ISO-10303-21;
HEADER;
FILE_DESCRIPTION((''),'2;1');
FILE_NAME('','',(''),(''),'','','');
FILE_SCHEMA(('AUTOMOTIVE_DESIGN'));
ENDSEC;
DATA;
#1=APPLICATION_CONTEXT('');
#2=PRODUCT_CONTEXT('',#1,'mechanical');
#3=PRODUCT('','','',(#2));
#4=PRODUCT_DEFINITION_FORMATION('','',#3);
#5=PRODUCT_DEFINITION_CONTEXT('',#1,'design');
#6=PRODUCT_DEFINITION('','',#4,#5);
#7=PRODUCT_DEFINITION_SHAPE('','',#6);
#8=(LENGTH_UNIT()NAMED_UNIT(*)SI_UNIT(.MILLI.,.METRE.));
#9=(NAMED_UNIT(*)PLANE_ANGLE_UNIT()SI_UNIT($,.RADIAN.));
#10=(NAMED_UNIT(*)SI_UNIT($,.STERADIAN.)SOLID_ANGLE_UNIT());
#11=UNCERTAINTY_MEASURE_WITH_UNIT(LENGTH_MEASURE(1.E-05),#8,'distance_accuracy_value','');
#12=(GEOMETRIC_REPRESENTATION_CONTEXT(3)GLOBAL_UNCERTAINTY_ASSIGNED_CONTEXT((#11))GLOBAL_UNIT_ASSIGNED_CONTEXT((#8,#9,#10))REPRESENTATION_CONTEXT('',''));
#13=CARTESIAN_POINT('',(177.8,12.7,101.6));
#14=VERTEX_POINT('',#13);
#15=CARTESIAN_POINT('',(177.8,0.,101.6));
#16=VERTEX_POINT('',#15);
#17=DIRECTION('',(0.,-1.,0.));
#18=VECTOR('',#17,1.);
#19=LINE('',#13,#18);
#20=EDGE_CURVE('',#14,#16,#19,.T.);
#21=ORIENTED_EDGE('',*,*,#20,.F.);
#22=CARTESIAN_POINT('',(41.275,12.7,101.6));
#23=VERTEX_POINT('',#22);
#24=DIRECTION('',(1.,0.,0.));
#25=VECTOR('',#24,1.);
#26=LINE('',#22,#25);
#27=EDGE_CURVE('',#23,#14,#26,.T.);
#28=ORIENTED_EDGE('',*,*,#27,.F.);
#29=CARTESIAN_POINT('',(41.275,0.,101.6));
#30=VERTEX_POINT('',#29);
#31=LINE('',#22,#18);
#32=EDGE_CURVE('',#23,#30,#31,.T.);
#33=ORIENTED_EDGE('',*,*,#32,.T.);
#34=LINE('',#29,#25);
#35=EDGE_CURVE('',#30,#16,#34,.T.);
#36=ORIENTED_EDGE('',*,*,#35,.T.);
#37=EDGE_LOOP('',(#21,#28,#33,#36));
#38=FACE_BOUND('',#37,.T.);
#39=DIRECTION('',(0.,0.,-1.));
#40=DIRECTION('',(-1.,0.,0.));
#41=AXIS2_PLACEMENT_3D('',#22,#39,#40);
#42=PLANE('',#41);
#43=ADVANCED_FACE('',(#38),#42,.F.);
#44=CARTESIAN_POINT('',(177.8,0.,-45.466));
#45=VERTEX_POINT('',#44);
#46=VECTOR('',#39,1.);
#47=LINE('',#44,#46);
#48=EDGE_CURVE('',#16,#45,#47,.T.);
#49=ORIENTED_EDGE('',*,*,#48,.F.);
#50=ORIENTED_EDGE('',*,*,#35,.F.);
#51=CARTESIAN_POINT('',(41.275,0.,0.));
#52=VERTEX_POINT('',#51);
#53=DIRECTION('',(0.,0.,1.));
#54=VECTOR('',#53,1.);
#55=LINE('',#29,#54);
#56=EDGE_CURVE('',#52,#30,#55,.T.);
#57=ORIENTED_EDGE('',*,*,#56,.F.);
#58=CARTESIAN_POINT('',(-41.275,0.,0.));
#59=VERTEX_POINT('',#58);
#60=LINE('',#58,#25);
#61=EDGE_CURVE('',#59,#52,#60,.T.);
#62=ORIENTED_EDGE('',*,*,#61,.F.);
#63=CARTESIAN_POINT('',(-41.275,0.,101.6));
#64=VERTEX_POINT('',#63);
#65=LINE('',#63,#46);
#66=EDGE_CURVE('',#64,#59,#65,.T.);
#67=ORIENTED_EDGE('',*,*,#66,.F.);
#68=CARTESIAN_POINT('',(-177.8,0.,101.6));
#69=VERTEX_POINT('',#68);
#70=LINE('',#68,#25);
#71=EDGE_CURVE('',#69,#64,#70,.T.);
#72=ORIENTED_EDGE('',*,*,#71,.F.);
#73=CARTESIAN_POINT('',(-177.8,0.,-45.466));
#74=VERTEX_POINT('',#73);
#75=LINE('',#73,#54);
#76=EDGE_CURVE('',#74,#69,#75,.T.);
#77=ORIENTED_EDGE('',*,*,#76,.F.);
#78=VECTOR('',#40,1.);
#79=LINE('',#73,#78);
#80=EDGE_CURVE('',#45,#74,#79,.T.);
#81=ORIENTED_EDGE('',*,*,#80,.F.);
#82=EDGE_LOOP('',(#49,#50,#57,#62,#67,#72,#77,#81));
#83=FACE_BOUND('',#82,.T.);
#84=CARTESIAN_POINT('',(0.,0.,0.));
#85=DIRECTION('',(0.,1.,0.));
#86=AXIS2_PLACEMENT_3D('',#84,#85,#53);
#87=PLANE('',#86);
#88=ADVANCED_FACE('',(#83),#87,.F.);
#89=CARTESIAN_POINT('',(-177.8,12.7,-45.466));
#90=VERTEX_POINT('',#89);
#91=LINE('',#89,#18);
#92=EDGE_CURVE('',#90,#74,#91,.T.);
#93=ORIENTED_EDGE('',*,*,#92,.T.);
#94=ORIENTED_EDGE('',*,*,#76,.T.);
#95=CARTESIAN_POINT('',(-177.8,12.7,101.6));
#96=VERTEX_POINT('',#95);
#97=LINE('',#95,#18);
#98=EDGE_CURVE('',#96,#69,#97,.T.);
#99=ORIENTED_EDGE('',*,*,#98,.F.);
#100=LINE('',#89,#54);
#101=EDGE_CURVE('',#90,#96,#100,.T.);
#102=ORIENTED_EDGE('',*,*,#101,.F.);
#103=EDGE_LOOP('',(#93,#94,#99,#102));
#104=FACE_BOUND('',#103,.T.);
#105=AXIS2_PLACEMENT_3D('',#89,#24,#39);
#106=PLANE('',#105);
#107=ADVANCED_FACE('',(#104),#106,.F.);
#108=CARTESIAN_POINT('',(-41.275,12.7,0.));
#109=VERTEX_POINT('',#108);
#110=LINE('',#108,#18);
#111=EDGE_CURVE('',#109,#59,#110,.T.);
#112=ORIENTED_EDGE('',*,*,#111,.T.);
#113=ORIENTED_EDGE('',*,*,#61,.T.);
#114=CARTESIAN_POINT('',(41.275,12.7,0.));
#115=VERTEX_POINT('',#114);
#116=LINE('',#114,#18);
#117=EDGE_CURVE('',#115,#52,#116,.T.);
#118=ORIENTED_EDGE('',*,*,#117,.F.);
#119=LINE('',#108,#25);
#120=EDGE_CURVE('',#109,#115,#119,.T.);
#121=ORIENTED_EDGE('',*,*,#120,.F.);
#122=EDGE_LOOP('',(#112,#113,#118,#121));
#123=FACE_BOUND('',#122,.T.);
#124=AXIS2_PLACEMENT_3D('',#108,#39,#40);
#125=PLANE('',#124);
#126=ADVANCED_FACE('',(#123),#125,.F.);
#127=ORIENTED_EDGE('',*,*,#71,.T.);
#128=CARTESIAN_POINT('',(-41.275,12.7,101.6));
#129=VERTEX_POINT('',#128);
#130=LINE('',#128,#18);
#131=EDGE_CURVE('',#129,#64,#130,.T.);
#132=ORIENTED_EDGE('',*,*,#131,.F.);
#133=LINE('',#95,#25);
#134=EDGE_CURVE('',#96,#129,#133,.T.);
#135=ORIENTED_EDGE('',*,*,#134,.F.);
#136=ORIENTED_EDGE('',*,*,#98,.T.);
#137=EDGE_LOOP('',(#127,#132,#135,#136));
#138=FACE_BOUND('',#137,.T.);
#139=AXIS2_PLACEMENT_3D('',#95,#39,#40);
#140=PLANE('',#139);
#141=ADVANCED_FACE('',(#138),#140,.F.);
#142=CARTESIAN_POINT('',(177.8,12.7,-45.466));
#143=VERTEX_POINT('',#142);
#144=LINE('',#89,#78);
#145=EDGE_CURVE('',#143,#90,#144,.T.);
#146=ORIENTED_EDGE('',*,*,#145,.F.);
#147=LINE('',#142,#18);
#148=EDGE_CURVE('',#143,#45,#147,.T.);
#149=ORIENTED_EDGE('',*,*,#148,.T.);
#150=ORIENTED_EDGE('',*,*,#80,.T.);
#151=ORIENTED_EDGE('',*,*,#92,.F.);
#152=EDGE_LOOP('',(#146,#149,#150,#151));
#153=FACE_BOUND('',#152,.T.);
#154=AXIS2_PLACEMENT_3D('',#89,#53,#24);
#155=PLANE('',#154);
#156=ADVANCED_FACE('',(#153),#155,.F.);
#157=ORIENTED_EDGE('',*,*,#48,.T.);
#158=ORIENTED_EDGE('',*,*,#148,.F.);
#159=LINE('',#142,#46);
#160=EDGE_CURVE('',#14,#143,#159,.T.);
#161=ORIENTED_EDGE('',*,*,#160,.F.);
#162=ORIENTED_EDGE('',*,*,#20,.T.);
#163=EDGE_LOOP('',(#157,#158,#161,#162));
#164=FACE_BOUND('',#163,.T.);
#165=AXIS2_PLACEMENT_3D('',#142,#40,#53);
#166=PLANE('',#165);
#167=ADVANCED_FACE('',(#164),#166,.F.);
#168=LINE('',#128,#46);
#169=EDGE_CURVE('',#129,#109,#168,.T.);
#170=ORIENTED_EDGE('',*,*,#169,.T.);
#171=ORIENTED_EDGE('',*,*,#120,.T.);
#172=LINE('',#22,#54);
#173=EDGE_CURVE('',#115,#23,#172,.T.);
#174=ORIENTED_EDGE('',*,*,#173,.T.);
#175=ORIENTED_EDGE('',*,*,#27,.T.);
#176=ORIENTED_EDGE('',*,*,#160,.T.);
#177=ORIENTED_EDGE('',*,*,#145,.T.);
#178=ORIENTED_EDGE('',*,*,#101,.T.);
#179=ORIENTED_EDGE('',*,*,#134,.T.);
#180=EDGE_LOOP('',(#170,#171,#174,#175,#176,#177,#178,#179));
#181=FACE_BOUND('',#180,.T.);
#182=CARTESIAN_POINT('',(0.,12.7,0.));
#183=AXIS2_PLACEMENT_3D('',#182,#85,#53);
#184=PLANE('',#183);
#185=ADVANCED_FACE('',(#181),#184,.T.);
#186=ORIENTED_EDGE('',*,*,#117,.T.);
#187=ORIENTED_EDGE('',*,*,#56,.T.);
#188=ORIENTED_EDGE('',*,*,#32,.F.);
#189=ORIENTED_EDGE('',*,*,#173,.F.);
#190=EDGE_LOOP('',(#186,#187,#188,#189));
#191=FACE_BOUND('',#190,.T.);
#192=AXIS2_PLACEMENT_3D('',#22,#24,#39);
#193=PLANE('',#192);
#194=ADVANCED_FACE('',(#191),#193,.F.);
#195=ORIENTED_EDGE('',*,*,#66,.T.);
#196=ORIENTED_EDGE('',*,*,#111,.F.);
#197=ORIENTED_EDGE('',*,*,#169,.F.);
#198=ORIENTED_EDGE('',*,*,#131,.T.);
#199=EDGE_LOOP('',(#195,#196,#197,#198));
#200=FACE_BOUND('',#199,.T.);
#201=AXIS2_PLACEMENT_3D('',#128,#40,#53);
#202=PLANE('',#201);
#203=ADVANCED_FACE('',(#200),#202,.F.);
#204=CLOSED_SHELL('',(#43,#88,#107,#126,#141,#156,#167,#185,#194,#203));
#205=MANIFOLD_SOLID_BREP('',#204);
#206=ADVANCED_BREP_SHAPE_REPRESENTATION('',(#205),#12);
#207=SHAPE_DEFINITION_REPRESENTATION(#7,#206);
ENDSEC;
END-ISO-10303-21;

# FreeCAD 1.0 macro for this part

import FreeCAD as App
import Part
import Sketcher

V = App.Vector
Q = App.Units.Quantity


def add_polygon(sketch, points):
    """Adds a closed chain of lines whose ends are joined by coincident constraints."""
    first, n = sketch.GeometryCount, len(points)
    for a, b in zip(points, points[1:] + points[:1]):
        sketch.addGeometry(Part.LineSegment(App.Vector(*a, 0), App.Vector(*b, 0)), False)
    for i in range(n):
        sketch.addConstraint(Sketcher.Constraint("Coincident", first + i, 2, first + (i + 1) % n, 1))

doc = App.newDocument("Part")
body = doc.addObject("PartDesign::Body", "Body")

sketch1 = body.newObject("Sketcher::SketchObject", "Sketch")
sketch1.AttachmentSupport = (doc.getObject("XZ_Plane"), [""])
sketch1.MapMode = "FlatFace"
add_polygon(sketch1, [(-41, 102), (-41, 0), (41, 0), (41, 102), (178, 102), (178, -45), (-178, -45), (-178, 102)])
sketch1.addConstraint(Sketcher.Constraint("Vertical", 0))
sketch1.addConstraint(Sketcher.Constraint("Horizontal", 1))
sketch1.addConstraint(Sketcher.Constraint("Vertical", 2))
sketch1.addConstraint(Sketcher.Constraint("Horizontal", 3))
sketch1.addConstraint(Sketcher.Constraint("Vertical", 4))
sketch1.addConstraint(Sketcher.Constraint("Horizontal", 5))
sketch1.addConstraint(Sketcher.Constraint("Vertical", 6))
sketch1.addConstraint(Sketcher.Constraint("Horizontal", 7))
sketch1.addConstraint(Sketcher.Constraint("Symmetric", 0, 2, 1, 2, -1, 1))
sketch1.addConstraint(Sketcher.Constraint("Symmetric", 3, 2, 6, 2, -2))
sketch1.addConstraint(Sketcher.Constraint("DistanceX", 5, 2, 5, 1, Q("14 in")))
sketch1.addConstraint(Sketcher.Constraint("DistanceY", 0, 2, 0, 1, Q("4 in")))
sketch1.addConstraint(Sketcher.Constraint("DistanceX", 1, 1, 1, 2, Q("3.25 in")))
sketch1.addConstraint(Sketcher.Constraint("DistanceY", 4, 2, 4, 1, Q("5.79 in")))
pad1 = body.newObject("PartDesign::Pad", "Pad")
pad1.Profile = sketch1
pad1.Length = Q("0.5 in")
pad1.Reversed = True

doc.recompute()
